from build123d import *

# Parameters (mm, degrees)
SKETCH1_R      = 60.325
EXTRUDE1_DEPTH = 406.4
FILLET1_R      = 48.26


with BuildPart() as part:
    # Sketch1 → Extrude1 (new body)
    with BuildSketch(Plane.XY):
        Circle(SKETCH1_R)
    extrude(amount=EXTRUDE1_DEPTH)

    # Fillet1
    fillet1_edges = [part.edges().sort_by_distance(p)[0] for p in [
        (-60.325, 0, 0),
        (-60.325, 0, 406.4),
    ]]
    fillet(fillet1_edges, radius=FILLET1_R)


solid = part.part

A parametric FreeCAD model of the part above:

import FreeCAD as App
import Part
import Sketcher
from FreeCAD import Vector
Q = App.Units.Quantity


def edges_at(feature, points):
    """Names of the edges that pass closest to the given points."""
    edges = feature.Shape.Edges
    near = lambda p: min(range(len(edges)), key=lambda i: edges[i].distToShape(Part.Vertex(*p))[0])
    return sorted({f"Edge{near(p) + 1}" for p in points})

doc = App.newDocument("Part")
body = doc.addObject("PartDesign::Body", "Body")

# Sketch on XY plane
sketch1 = body.newObject("Sketcher::SketchObject", "Sketch")
sketch1.AttachmentSupport = (doc.getObject("XY_Plane"), [""])
sketch1.MapMode = "FlatFace"
sketch1.addGeometry(Part.Circle(Vector(0, 0, 0), Vector(0, 0, 1), 60), False)
sketch1.addConstraint([
    Sketcher.Constraint("Coincident", 0, 3, -1, 1),
    Sketcher.Constraint("Diameter", 0, Q("4.75 in")),
])
pad1 = body.newObject("PartDesign::Pad", "Pad")
pad1.Profile = sketch1
pad1.Length = Q("16 in")
doc.recompute()

fillet = body.newObject("PartDesign::Fillet", "Fillet")
fillet.Base = (pad1, edges_at(pad1, [(-60.325, 0, 0), (-60.325, 0, 406.4)]))
fillet.Radius = Q("1.9 in")

doc.recompute()
